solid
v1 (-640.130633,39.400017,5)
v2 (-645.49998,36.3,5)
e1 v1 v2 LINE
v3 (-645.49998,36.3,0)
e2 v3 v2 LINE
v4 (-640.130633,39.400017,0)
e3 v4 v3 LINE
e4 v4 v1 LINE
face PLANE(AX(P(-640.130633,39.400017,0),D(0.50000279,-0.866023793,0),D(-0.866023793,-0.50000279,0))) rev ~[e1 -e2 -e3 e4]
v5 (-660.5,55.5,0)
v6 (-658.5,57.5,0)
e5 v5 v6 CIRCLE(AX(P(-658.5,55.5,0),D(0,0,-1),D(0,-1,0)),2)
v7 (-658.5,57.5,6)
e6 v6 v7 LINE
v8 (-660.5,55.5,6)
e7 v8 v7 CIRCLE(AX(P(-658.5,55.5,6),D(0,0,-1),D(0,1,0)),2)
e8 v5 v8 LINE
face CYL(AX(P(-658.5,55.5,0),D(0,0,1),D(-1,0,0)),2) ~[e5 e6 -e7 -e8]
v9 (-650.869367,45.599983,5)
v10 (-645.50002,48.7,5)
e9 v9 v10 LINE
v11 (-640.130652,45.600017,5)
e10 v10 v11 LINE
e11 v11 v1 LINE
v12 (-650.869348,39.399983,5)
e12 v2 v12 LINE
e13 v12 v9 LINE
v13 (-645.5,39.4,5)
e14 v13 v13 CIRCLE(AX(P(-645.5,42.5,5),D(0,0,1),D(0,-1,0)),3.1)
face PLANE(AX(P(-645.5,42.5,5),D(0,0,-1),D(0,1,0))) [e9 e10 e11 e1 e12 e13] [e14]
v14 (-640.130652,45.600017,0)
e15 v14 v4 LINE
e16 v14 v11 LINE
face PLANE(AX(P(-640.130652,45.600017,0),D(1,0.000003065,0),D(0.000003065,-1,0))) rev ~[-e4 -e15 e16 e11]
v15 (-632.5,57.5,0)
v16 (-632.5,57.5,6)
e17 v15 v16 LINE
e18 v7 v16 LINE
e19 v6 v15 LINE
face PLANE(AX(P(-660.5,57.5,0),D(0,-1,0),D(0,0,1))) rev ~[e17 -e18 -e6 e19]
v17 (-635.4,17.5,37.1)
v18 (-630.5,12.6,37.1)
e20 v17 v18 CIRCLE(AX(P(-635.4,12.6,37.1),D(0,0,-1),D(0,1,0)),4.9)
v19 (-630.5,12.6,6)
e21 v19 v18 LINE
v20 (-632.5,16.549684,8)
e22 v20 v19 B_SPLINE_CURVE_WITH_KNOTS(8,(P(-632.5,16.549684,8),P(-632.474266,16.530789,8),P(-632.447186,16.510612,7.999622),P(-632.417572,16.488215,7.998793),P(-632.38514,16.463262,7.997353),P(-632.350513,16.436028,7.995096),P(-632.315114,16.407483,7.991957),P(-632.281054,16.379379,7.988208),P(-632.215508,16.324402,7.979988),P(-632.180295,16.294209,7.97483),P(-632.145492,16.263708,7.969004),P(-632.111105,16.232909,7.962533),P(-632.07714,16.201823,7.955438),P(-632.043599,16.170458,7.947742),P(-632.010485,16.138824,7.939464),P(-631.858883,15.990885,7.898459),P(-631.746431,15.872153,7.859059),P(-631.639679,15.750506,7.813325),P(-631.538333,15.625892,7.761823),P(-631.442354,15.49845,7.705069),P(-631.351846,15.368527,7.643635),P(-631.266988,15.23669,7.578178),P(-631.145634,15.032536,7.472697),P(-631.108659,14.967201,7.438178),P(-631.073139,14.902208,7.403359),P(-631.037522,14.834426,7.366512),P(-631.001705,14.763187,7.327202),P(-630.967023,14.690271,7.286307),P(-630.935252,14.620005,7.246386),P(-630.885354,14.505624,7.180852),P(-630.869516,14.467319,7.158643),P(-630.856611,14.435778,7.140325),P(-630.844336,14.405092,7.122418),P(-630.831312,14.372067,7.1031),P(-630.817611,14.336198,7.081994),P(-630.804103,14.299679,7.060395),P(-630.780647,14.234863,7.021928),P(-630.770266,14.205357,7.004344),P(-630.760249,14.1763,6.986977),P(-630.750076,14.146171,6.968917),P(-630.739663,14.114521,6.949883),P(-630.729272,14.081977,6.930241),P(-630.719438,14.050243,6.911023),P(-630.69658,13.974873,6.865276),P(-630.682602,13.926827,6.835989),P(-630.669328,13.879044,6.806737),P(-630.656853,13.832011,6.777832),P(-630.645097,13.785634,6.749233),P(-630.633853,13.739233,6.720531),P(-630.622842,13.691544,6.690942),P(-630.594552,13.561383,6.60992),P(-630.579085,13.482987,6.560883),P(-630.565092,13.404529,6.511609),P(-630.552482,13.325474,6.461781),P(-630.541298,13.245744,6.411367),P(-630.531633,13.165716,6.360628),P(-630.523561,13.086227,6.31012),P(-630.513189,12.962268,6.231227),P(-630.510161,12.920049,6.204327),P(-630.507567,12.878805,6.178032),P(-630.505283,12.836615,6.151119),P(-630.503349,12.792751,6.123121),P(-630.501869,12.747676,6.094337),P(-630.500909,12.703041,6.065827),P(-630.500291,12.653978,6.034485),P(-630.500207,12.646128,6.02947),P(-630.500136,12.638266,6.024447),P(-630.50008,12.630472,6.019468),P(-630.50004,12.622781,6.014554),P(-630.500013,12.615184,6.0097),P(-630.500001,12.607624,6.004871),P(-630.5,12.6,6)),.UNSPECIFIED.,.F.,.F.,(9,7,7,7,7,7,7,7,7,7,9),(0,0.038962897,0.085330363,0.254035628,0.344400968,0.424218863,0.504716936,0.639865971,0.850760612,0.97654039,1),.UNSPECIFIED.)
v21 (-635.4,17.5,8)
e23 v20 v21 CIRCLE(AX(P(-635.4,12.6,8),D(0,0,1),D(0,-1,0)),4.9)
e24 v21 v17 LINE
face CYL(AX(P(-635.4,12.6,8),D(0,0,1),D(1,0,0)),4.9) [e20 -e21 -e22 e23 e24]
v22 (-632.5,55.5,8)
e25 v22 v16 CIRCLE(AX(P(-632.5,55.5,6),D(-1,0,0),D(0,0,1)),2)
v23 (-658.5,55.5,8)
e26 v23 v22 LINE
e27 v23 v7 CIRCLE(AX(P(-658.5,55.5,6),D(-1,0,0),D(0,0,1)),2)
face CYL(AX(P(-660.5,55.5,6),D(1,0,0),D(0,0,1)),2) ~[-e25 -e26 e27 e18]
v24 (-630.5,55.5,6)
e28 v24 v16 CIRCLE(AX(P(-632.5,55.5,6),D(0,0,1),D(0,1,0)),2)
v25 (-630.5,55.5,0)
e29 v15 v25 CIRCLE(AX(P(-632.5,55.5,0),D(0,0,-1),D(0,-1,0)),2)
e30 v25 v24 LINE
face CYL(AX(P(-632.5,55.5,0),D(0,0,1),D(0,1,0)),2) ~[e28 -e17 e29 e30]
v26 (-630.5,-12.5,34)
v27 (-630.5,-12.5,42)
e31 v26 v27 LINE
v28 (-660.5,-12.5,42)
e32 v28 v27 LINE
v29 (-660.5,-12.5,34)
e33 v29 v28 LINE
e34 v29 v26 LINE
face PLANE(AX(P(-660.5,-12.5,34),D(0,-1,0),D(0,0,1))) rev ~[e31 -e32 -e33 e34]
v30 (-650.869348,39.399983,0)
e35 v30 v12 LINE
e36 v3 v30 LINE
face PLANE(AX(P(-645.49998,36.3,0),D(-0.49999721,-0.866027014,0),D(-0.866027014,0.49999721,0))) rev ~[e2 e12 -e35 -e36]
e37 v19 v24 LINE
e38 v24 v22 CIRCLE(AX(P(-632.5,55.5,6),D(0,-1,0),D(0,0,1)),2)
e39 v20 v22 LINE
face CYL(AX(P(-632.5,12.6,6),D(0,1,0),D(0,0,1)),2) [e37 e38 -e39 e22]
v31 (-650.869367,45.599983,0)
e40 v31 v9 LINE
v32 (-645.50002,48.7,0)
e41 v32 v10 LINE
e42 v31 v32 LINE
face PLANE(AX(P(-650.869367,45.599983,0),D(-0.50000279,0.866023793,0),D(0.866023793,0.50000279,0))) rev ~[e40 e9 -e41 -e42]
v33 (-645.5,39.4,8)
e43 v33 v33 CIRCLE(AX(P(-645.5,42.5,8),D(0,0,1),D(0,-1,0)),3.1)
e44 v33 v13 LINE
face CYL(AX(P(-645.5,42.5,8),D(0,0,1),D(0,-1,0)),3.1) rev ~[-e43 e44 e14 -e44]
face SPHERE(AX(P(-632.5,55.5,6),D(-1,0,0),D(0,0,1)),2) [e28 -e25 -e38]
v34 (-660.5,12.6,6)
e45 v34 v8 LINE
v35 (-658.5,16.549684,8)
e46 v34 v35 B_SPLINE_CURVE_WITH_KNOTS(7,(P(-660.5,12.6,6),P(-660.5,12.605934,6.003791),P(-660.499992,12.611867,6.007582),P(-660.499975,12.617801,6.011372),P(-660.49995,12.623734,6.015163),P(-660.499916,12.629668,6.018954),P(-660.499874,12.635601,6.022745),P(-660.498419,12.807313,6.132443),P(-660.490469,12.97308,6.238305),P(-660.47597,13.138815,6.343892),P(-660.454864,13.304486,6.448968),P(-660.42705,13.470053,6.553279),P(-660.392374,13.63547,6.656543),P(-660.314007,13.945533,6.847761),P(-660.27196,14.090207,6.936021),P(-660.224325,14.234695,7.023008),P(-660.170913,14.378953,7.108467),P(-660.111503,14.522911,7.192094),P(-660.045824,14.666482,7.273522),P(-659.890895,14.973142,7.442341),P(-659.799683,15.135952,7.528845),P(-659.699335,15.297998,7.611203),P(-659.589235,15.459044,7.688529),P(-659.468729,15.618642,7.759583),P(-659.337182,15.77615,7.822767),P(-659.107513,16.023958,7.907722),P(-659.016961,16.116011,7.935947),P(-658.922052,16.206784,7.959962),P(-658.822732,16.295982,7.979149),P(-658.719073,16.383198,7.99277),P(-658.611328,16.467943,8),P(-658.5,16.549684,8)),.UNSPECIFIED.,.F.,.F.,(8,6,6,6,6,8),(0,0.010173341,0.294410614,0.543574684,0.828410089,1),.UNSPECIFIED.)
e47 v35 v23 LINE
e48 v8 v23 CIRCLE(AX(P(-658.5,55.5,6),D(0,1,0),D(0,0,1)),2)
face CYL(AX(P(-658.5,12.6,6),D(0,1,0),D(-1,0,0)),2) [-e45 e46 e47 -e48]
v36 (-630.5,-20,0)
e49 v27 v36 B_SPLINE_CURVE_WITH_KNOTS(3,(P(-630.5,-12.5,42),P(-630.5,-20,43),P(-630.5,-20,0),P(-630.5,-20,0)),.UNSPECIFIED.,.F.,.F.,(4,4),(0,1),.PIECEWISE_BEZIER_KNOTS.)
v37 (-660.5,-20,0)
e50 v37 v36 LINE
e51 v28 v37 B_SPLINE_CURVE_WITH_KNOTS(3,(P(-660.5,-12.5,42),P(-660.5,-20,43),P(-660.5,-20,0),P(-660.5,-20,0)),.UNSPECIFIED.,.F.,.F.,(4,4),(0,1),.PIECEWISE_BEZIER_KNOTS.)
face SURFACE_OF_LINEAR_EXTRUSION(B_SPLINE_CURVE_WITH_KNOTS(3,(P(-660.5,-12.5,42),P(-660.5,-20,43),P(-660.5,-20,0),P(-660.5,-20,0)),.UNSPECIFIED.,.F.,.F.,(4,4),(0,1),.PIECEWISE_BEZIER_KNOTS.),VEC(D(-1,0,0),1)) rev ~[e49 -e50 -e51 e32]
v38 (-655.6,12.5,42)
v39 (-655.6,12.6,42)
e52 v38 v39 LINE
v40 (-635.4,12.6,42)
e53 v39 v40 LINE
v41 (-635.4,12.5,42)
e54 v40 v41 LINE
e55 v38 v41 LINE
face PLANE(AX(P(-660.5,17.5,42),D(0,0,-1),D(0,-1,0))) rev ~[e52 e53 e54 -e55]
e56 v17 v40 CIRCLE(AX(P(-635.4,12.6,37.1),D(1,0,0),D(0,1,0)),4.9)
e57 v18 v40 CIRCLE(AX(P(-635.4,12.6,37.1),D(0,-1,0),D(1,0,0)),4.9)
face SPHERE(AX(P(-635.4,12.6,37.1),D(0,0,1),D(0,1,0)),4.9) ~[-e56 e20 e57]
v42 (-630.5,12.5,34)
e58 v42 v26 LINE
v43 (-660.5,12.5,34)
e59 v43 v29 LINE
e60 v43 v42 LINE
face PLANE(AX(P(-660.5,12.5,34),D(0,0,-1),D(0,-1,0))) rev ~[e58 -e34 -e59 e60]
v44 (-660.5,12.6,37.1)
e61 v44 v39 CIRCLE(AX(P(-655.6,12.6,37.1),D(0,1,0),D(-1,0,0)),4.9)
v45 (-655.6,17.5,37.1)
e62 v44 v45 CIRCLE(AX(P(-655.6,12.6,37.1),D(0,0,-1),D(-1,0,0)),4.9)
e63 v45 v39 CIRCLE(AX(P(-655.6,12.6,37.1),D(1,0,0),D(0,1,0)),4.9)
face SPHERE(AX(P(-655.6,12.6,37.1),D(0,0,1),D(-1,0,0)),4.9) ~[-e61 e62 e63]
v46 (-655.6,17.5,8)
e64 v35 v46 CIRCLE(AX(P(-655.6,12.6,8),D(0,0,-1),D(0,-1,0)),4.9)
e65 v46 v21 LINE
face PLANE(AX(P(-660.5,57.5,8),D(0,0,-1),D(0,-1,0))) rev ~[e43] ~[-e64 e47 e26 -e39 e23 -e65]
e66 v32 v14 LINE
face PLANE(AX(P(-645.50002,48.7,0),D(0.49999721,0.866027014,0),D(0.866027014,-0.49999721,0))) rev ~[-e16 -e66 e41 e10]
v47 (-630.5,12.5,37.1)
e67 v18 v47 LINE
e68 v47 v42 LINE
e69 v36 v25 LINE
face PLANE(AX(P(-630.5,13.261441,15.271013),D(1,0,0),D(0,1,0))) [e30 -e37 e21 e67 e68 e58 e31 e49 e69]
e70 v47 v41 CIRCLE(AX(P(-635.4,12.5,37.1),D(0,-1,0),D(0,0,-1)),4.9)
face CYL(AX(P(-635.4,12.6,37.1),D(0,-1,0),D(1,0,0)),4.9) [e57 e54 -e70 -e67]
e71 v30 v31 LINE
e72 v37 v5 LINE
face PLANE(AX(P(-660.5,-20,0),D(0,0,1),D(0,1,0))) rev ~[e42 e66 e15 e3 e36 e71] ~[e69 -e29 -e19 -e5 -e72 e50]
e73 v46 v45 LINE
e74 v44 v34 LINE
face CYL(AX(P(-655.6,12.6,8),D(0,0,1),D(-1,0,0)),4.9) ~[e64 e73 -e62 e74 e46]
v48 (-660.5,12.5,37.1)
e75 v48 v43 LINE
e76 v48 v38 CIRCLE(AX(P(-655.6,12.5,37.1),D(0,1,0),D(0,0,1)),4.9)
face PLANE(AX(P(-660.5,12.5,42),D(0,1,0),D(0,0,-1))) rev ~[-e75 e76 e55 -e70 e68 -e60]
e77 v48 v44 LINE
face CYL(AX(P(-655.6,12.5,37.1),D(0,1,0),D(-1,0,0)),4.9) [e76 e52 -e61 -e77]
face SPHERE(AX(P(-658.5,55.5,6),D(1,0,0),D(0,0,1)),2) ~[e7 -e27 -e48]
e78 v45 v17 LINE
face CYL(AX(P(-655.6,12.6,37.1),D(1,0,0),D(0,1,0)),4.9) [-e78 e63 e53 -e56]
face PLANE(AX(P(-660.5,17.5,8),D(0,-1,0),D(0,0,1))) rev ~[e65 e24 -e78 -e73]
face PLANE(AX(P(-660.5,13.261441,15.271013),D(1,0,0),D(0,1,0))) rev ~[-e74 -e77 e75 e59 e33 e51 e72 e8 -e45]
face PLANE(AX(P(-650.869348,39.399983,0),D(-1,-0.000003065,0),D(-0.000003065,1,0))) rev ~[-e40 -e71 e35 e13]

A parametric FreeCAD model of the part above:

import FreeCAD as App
import Part
import Sketcher


def edges_at(feature, points):
    """Names of the edges that pass closest to the given points."""
    edges = feature.Shape.Edges
    near = lambda p: min(range(len(edges)), key=lambda i: edges[i].distToShape(Part.Vertex(*p))[0])
    return sorted({f"Edge{near(p) + 1}" for p in points})

doc = App.newDocument("Part")
body = doc.addObject("PartDesign::Body", "Body")

sketch1 = body.newObject("Sketcher::SketchObject", "Sketch")
sketch1.AttachmentSupport = (doc.getObject("YZ_Plane"), [""])
sketch1.MapMode = "FlatFace"
sketch1.addGeometry([
    Part.BSplineCurve([App.Vector(-12.5, 42, 0), App.Vector(-20, 43, 0), App.Vector(-20, 0, 0), App.Vector(-20, 0, 0)], [4, 4], [0, 1], False, 3, [1, 1, 1, 1], False),
    Part.LineSegment(App.Vector(-20, 0, 0), App.Vector(57.5, 0, 0)),
    Part.LineSegment(App.Vector(57.5, 0, 0), App.Vector(57.5, 8, 0)),
    Part.LineSegment(App.Vector(57.5, 8, 0), App.Vector(17.5, 8, 0)),
    Part.LineSegment(App.Vector(17.5, 8, 0), App.Vector(17.5, 42, 0)),
    Part.LineSegment(App.Vector(17.5, 42, 0), App.Vector(12.5, 42, 0)),
    Part.LineSegment(App.Vector(12.5, 42, 0), App.Vector(12.5, 34, 0)),
    Part.LineSegment(App.Vector(12.5, 34, 0), App.Vector(-12.5, 34, 0)),
    Part.LineSegment(App.Vector(-12.5, 34, 0), App.Vector(-12.5, 42, 0)),
], False)
sketch1.addConstraint([
    Sketcher.Constraint("Block", 0),
    Sketcher.Constraint("Coincident", 0, 2, 1, 1),
    Sketcher.Constraint("Coincident", 1, 2, 2, 1),
    Sketcher.Constraint("Coincident", 2, 2, 3, 1),
    Sketcher.Constraint("Coincident", 3, 2, 4, 1),
    Sketcher.Constraint("Coincident", 4, 2, 5, 1),
    Sketcher.Constraint("Coincident", 5, 2, 6, 1),
    Sketcher.Constraint("Coincident", 6, 2, 7, 1),
    Sketcher.Constraint("Coincident", 7, 2, 8, 1),
    Sketcher.Constraint("Coincident", 8, 2, 0, 1),
    Sketcher.Constraint("Horizontal", 1),
    Sketcher.Constraint("Vertical", 2),
    Sketcher.Constraint("Horizontal", 3),
    Sketcher.Constraint("Vertical", 4),
    Sketcher.Constraint("Horizontal", 5),
    Sketcher.Constraint("Vertical", 6),
    Sketcher.Constraint("Horizontal", 7),
    Sketcher.Constraint("Vertical", 8),
    Sketcher.Constraint("Symmetric", 5, 2, 8, 2, -2),
    Sketcher.Constraint("Equal", 2, 6),
    Sketcher.Constraint("DistanceX", 3, 2, 3, 1, 40.0),
    Sketcher.Constraint("DistanceX", 5, 2, 5, 1, 5.0),
    Sketcher.Constraint("DistanceY", 2, 1, 2, 2, 8.0),
])
pad1 = body.newObject("PartDesign::Pad", "Pad")
pad1.Profile = sketch1
pad1.Length = 30

sketch2 = body.newObject("Sketcher::SketchObject", "Sketch001")
sketch2.AttachmentSupport = (doc.getObject("XY_Plane"), [""])
sketch2.MapMode = "FlatFace"
sketch2.AttachmentOffset = App.Placement(App.Vector(0, 0, 8), App.Rotation())
sketch2.addGeometry(Part.Circle(App.Vector(15, 42.5, 0), App.Vector(0, 0, 1), 3.1), False)
sketch2.addConstraint([
    Sketcher.Constraint("Diameter", 0, 6.2),
    Sketcher.Constraint("DistanceX", -1, 1, 0, 3, 15.0),
    Sketcher.Constraint("DistanceY", -1, 1, 0, 3, 42.5),
])
pocket1 = body.newObject("PartDesign::Pocket", "Pocket")
pocket1.Profile = sketch2
pocket1.Type = "ThroughAll"

sketch3 = body.newObject("Sketcher::SketchObject", "Sketch002")
sketch3.AttachmentSupport = (doc.getObject("XY_Plane"), [""])
sketch3.MapMode = "FlatFace"
sketch3.addGeometry([
    Part.LineSegment(App.Vector(15, 49, 0), App.Vector(20, 46, 0)),
    Part.LineSegment(App.Vector(20, 46, 0), App.Vector(20, 39, 0)),
    Part.LineSegment(App.Vector(20, 39, 0), App.Vector(15, 36, 0)),
    Part.LineSegment(App.Vector(15, 36, 0), App.Vector(10, 39, 0)),
    Part.LineSegment(App.Vector(10, 39, 0), App.Vector(10, 46, 0)),
    Part.LineSegment(App.Vector(10, 46, 0), App.Vector(15, 49, 0)),
], False)
sketch3.addConstraint([
    Sketcher.Constraint("Coincident", 0, 2, 1, 1),
    Sketcher.Constraint("Coincident", 1, 2, 2, 1),
    Sketcher.Constraint("Coincident", 2, 2, 3, 1),
    Sketcher.Constraint("Coincident", 3, 2, 4, 1),
    Sketcher.Constraint("Coincident", 4, 2, 5, 1),
    Sketcher.Constraint("Coincident", 5, 2, 0, 1),
    Sketcher.Constraint("Parallel", 0, 3),
    Sketcher.Constraint("Parallel", 1, 4),
    Sketcher.Constraint("Parallel", 2, 5),
    Sketcher.Constraint("Equal", 0, 1),
    Sketcher.Constraint("Equal", 1, 2),
    Sketcher.Constraint("Equal", 2, 3),
    Sketcher.Constraint("Distance", 0, 6.200001),
    Sketcher.Constraint("DistanceY", -1, 1, 2, 2, 36.3),
    Sketcher.Constraint("DistanceY", -1, 1, 5, 2, 48.7),
    Sketcher.Constraint("DistanceX", -1, 1, 2, 2, 15.00002),
    Sketcher.Constraint("DistanceX", -1, 1, 5, 2, 14.99998),
    Sketcher.Constraint("DistanceX", 3, 2, 5, 2, 5.369328),
])
pocket2 = body.newObject("PartDesign::Pocket", "Pocket001")
pocket2.Profile = sketch3
pocket2.Length = 5
pocket2.Reversed = True
doc.recompute()

fillet = body.newObject("PartDesign::Fillet", "Fillet")
fillet.Base = (pocket2, edges_at(pocket2, [(30, 17.5, 25), (0, 17.5, 25)]))
fillet.Radius = 4.9
doc.recompute()

fillet2 = body.newObject("PartDesign::Fillet", "Fillet001")
fillet2.Base = (fillet, edges_at(fillet, [(15, 17.5, 42)]))
fillet2.Radius = 4.9
doc.recompute()

fillet3 = body.newObject("PartDesign::Fillet", "Fillet002")
fillet3.Base = (fillet2, edges_at(fillet2, [
    (15, 57.5, 8),
    (0, 35.05, 8),
    (30, 35.05, 8),
    (30, 57.5, 4),
    (0, 57.5, 4),
]))
fillet3.Radius = 2
body2 = doc.addObject("PartDesign::Body", "Body001")
doc.recompute()

body.Placement = App.Placement(App.Vector(-660.5, 0, 0), App.Rotation(App.Vector(0, 0, 1), 0))
boolean = body2.newObject("PartDesign::Boolean", "Boolean")
boolean.Type = "Fuse"
boolean.addObjects([body])

doc.recompute()
